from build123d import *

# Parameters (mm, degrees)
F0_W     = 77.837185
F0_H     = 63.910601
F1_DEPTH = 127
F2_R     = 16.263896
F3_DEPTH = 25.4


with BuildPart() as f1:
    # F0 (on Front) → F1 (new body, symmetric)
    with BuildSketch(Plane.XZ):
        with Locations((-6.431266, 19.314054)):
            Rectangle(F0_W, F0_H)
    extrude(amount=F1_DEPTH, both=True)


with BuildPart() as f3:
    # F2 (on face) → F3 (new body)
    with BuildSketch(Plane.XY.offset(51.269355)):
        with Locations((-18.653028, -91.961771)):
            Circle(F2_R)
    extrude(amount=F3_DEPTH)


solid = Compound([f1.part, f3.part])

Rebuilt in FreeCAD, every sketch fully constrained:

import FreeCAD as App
import Part
import Sketcher
from FreeCAD import Vector
Q = App.Units.Quantity


def add_polygon(sketch, points):
    """Adds a closed chain of lines whose ends are joined by coincident constraints."""
    first, n = sketch.GeometryCount, len(points)
    for a, b in zip(points, points[1:] + points[:1]):
        sketch.addGeometry(Part.LineSegment(App.Vector(*a, 0), App.Vector(*b, 0)), False)
    for i in range(n):
        sketch.addConstraint(Sketcher.Constraint("Coincident", first + i, 2, first + (i + 1) % n, 1))

doc = App.newDocument("Part")
body = doc.addObject("PartDesign::Body", "Body")

sketch1 = doc.addObject("Sketcher::SketchObject", "Sketch")
body.addObject(sketch1)
sketch1.AttachmentSupport = (doc.XZ_Plane, [""])
sketch1.MapMode = "FlatFace"
add_polygon(sketch1, [(-45, 51), (-45, -13), (32, -13), (32, 51)])
sketch1.addConstraint([
    Sketcher.Constraint("Vertical", 0),
    Sketcher.Constraint("Horizontal", 1),
    Sketcher.Constraint("Vertical", 2),
    Sketcher.Constraint("Horizontal", 3),
    Sketcher.Constraint("DistanceY", 0, 2, 0, 1, 63.910601),
    Sketcher.Constraint("DistanceX", 1, 1, 1, 2, 77.837185),
    Sketcher.Constraint("DistanceX", 0, 2, -1, 1, 45.349859),
    Sketcher.Constraint("DistanceY", 0, 2, -1, 1, 12.641246),
])
pad1 = doc.addObject("PartDesign::Pad", "Pad")
body.addObject(pad1)
pad1.Profile = sketch1
pad1.Length = Q("10 in")
pad1.Midplane = True
body2 = doc.addObject("PartDesign::Body", "Body001")

sketch2 = doc.addObject("Sketcher::SketchObject", "Sketch001")
body2.addObject(sketch2)
sketch2.AttachmentSupport = (doc.getObject("XY_Plane001"), [""])
sketch2.MapMode = "FlatFace"
sketch2.AttachmentOffset = App.Placement(Vector(0, 0, 51.269355), App.Rotation())
sketch2.addGeometry(Part.Circle(Vector(-19, -92, 0), Vector(0, 0, 1), 16), False)
sketch2.addConstraint([
    Sketcher.Constraint("Diameter", 0, 32.527792),
    Sketcher.Constraint("DistanceY", 0, 3, -1, 1, 91.961771),
    Sketcher.Constraint("DistanceX", 0, 3, -1, 1, 18.653028),
])
pad2 = doc.addObject("PartDesign::Pad", "Pad001")
body2.addObject(pad2)
pad2.Profile = sketch2
pad2.Length = Q("1 in")

doc.recompute()
